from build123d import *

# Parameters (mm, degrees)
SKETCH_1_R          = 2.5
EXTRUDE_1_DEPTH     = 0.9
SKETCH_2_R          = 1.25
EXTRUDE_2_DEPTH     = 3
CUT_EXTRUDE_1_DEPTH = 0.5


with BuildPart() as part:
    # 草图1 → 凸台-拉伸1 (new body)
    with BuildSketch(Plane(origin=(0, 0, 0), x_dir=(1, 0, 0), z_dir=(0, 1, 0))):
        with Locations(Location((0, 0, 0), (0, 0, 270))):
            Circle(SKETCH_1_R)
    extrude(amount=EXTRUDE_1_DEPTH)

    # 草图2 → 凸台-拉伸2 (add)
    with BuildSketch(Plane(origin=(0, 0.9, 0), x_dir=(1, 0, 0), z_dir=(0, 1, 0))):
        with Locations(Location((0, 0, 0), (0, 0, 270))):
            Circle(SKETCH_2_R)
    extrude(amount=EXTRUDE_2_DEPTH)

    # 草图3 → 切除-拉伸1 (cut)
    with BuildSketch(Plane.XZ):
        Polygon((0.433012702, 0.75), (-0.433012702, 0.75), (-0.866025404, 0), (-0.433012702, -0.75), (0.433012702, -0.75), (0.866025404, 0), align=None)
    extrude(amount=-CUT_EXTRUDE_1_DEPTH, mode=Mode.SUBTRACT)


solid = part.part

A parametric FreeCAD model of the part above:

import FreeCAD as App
import Part
import Sketcher

V = App.Vector
Q = App.Units.Quantity

doc = App.newDocument("Part")
body = doc.addObject("PartDesign::Body", "Body")

sketch1 = doc.addObject("Sketcher::SketchObject", "Sketch")
body.addObject(sketch1)
sketch1.AttachmentSupport = (doc.XZ_Plane, [""])
sketch1.MapMode = "FlatFace"
sketch1.addGeometry(Part.Circle(V(0, 0, 0), V(0, 0, 1), 2.5), False)
sketch1.addConstraint(Sketcher.Constraint("Coincident", 0, 3, -1, 1))
sketch1.addConstraint(Sketcher.Constraint("Diameter", 0, 5.0))
pad1 = doc.addObject("PartDesign::Pad", "Pad")
body.addObject(pad1)
pad1.Profile = sketch1
pad1.Length = 0.9
pad1.Reversed = True

sketch2 = doc.addObject("Sketcher::SketchObject", "Sketch001")
body.addObject(sketch2)
sketch2.AttachmentSupport = (doc.XZ_Plane, [""])
sketch2.MapMode = "FlatFace"
sketch2.AttachmentOffset = App.Placement(V(0, 0, -0.9), App.Rotation())
sketch2.addGeometry(Part.Circle(V(0, 0, 0), V(0, 0, 1), 1.2), False)
sketch2.addConstraint(Sketcher.Constraint("Coincident", 0, 3, -1, 1))
sketch2.addConstraint(Sketcher.Constraint("Diameter", 0, 2.5))
pad2 = doc.addObject("PartDesign::Pad", "Pad001")
body.addObject(pad2)
pad2.Profile = sketch2
pad2.Length = 3
pad2.Reversed = True

sketch3 = doc.addObject("Sketcher::SketchObject", "Sketch002")
body.addObject(sketch3)
sketch3.AttachmentSupport = (doc.XZ_Plane, [""])
sketch3.MapMode = "FlatFace"
sketch3.addGeometry(Part.LineSegment(V(0.4, 0.8, 0), V(-0.4, 0.8, 0)), False)
sketch3.addGeometry(Part.LineSegment(V(-0.4, 0.8, 0), V(-0.9, 0, 0)), False)
sketch3.addGeometry(Part.LineSegment(V(-0.9, 0, 0), V(-0.4, -0.8, 0)), False)
sketch3.addGeometry(Part.LineSegment(V(-0.4, -0.8, 0), V(0.4, -0.8, 0)), False)
sketch3.addGeometry(Part.LineSegment(V(0.4, -0.8, 0), V(0.9, 0, 0)), False)
sketch3.addGeometry(Part.LineSegment(V(0.9, 0, 0), V(0.4, 0.8, 0)), False)
sketch3.addConstraint(Sketcher.Constraint("Coincident", 0, 2, 1, 1))
sketch3.addConstraint(Sketcher.Constraint("Coincident", 1, 2, 2, 1))
sketch3.addConstraint(Sketcher.Constraint("Coincident", 2, 2, 3, 1))
sketch3.addConstraint(Sketcher.Constraint("Coincident", 3, 2, 4, 1))
sketch3.addConstraint(Sketcher.Constraint("Coincident", 4, 2, 5, 1))
sketch3.addConstraint(Sketcher.Constraint("Coincident", 5, 2, 0, 1))
sketch3.addConstraint(Sketcher.Constraint("Horizontal", 0))
sketch3.addConstraint(Sketcher.Constraint("Horizontal", 3))
sketch3.addConstraint(Sketcher.Constraint("Symmetric", 0, 2, 3, 2, -1, 1))
sketch3.addConstraint(Sketcher.Constraint("Symmetric", 1, 2, 4, 2, -1, 1))
sketch3.addConstraint(Sketcher.Constraint("PointOnObject", 1, 2, -1))
sketch3.addConstraint(Sketcher.Constraint("Parallel", 2, 5))
sketch3.addConstraint(Sketcher.Constraint("Vertical", 0, 2, 2, 2))
sketch3.addConstraint(Sketcher.Constraint("Angle", 1, Q("-120 deg")))
sketch3.addConstraint(Sketcher.Constraint("DistanceY", 2, 2, 0, 2, 1.5))
sketch3.addConstraint(Sketcher.Constraint("DistanceX", 0, 2, 0, 1, 0.866025))
pocket1 = doc.addObject("PartDesign::Pocket", "Pocket")
body.addObject(pocket1)
pocket1.Profile = sketch3
pocket1.Length = 0.5

doc.recompute()
